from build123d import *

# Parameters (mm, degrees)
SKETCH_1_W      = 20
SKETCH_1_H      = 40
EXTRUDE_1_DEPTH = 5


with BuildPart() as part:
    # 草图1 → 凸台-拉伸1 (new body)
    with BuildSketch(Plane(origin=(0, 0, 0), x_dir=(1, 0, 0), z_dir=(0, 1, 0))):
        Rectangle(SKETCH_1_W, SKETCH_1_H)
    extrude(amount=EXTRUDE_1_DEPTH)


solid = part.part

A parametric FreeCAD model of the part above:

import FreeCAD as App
import Part
import Sketcher

V = App.Vector
Q = App.Units.Quantity


def add_polygon(sketch, points):
    """Adds a closed chain of lines whose ends are joined by coincident constraints."""
    first, n = sketch.GeometryCount, len(points)
    for a, b in zip(points, points[1:] + points[:1]):
        sketch.addGeometry(Part.LineSegment(App.Vector(*a, 0), App.Vector(*b, 0)), False)
    for i in range(n):
        sketch.addConstraint(Sketcher.Constraint("Coincident", first + i, 2, first + (i + 1) % n, 1))

doc = App.newDocument("Part")
params = doc.addObject("Spreadsheet::Sheet", "Params")
for row, (alias, value) in enumerate([
    ("sketch1_width", "20 mm"),
    ("sketch1_height", "40 mm"),
    ("pad1_length", "5 mm"),
], start=1):
    params.set(f"A{row}", alias)
    params.set(f"B{row}", "=" + value)
    params.setAlias(f"B{row}", alias)

body = doc.addObject("PartDesign::Body", "Body")

# Sketch on XZ plane
sketch1 = body.newObject("Sketcher::SketchObject", "Sketch")
sketch1.AttachmentSupport = (doc.getObject("XZ_Plane"), [""])
sketch1.MapMode = "FlatFace"
add_polygon(sketch1, [(-10, -20), (-10, 20), (10, 20), (10, -20)])  # lines 0-3
sketch1.addConstraint(Sketcher.Constraint("Vertical", 0))
sketch1.addConstraint(Sketcher.Constraint("Horizontal", 1))
sketch1.addConstraint(Sketcher.Constraint("Vertical", 2))
sketch1.addConstraint(Sketcher.Constraint("Horizontal", 3))
sketch1.addConstraint(Sketcher.Constraint("Symmetric", 0, 2, 2, 2, -1, 1))
sketch1.addConstraint(Sketcher.Constraint("DistanceX", 1, 1, 1, 2, Q("20 mm")))
sketch1.addConstraint(Sketcher.Constraint("DistanceY", 0, 1, 0, 2, Q("40 mm")))
sketch1.setExpression("Constraints[9]", "Params.sketch1_width")
sketch1.setExpression("Constraints[10]", "Params.sketch1_height")
pad1 = body.newObject("PartDesign::Pad", "Pad")
pad1.Profile = sketch1
pad1.setExpression("Length", "Params.pad1_length")
pad1.Reversed = True

doc.recompute()
